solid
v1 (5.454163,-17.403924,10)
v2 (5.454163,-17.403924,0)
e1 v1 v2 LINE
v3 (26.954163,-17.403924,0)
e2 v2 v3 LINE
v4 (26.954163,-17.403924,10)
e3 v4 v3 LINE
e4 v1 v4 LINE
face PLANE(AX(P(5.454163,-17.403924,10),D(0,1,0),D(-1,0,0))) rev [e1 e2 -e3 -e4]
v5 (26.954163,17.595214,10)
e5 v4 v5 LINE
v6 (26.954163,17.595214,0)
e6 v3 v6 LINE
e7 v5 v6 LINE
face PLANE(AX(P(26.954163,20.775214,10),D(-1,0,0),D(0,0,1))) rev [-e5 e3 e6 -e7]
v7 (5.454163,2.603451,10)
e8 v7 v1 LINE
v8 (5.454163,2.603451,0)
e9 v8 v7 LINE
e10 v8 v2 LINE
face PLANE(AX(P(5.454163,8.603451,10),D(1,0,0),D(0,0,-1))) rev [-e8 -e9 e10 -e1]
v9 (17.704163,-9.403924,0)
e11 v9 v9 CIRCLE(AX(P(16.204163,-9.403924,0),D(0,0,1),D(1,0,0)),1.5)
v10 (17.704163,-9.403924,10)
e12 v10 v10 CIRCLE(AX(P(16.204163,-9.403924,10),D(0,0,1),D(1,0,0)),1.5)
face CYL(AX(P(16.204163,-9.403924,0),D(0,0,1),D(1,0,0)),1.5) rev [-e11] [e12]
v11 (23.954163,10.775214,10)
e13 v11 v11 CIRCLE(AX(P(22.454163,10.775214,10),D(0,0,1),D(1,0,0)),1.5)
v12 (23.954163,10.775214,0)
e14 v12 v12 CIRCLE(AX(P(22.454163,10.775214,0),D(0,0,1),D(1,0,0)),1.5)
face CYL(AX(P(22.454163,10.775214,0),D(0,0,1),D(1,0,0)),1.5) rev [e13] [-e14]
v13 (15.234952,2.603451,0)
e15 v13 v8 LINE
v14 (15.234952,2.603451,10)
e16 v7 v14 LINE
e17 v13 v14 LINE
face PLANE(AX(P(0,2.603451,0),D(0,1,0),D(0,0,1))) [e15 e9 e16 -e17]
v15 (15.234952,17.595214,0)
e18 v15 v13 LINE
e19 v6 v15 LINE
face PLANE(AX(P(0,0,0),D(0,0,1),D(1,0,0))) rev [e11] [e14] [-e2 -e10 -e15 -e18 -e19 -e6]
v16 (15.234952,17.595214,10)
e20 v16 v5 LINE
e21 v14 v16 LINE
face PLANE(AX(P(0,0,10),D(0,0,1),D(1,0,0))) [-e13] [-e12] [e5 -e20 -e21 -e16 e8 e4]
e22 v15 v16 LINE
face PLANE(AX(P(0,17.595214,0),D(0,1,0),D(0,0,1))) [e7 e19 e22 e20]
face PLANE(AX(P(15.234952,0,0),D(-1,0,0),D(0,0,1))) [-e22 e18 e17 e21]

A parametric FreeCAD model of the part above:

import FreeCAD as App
import Part
import Sketcher
Q = App.Units.Quantity

doc = App.newDocument("Part")
params = doc.addObject("Spreadsheet::Sheet", "Params")
for row, (alias, value) in enumerate([
    ("sketch1_width", "21.5 mm"),
    ("pad1_length", "10 mm"),
    ("sketch2_height", "10 mm"),
    ("pocket1_length", "6 mm"),
    ("sketch3_height", "10 mm"),
    ("pad2_length", "1 mm"),
    ("sketch4_diameter", "3 mm"),
    ("sketch5_height", "10 mm"),
    ("pocket3_length", "3.18 mm"),
], start=1):
    params.set(f"A{row}", alias)
    params.set(f"B{row}", "=" + value)
    params.setAlias(f"B{row}", alias)

body = doc.addObject("PartDesign::Body", "Body")

# Sketch on XY plane
sketch1 = body.newObject("Sketcher::SketchObject", "Sketch")
sketch1.AttachmentSupport = (doc.getObject("XY_Plane"), [""])
sketch1.MapMode = "FlatFace"
sketch1.addGeometry([
    Part.LineSegment(App.Vector(16, 9, 0), App.Vector(5, 9, 0)),  # 0
    Part.LineSegment(App.Vector(5, 9, 0), App.Vector(5, -17, 0)),  # 1
    Part.LineSegment(App.Vector(5, -17, 0), App.Vector(27, -17, 0)),  # 2
    Part.LineSegment(App.Vector(27, -17, 0), App.Vector(27, 21, 0)),  # 3
    Part.LineSegment(App.Vector(27, 21, 0), App.Vector(16, 21, 0)),  # 4
    Part.LineSegment(App.Vector(16, 21, 0), App.Vector(16, 9, 0)),  # 5
], False)
sketch1.addConstraint([
    Sketcher.Constraint("Coincident", 0, 2, 1, 1),
    Sketcher.Constraint("Coincident", 1, 2, 2, 1),
    Sketcher.Constraint("Coincident", 2, 2, 3, 1),
    Sketcher.Constraint("Coincident", 3, 2, 4, 1),
    Sketcher.Constraint("Coincident", 4, 2, 5, 1),
    Sketcher.Constraint("Coincident", 5, 2, 0, 1),
    Sketcher.Constraint("Horizontal", 0),
    Sketcher.Constraint("Vertical", 1),
    Sketcher.Constraint("Horizontal", 2),
    Sketcher.Constraint("Vertical", 3),
    Sketcher.Constraint("Horizontal", 4),
    Sketcher.Constraint("Vertical", 5),
    Sketcher.Constraint("DistanceX", 2, 1, 2, 2, Q("21.5 mm")),
    Sketcher.Constraint("DistanceX", 0, 2, 0, 1, Q("10.780789 mm")),
    Sketcher.Constraint("DistanceY", 3, 1, 3, 2, Q("38.179139 mm")),
    Sketcher.Constraint("DistanceY", 1, 2, 1, 1, Q("26.007376 mm")),
    Sketcher.Constraint("DistanceY", -1, 1, 0, 2, Q("8.603451 mm")),
    Sketcher.Constraint("DistanceX", -1, 1, 4, 2, Q("16.234952 mm")),
])
sketch1.setExpression("Constraints[12]", "Params.sketch1_width")
pad1 = body.newObject("PartDesign::Pad", "Pad")
pad1.Profile = sketch1
pad1.setExpression("Length", "Params.pad1_length")

# Sketch on XZ plane
sketch2 = body.newObject("Sketcher::SketchObject", "Sketch001")
sketch2.AttachmentSupport = (doc.getObject("XZ_Plane"), [""])
sketch2.MapMode = "FlatFace"
sketch2.AttachmentOffset = App.Placement(App.Vector(0, 0, -8.603451), App.Rotation())
sketch2.addGeometry([
    Part.LineSegment(App.Vector(5, 0, 0), App.Vector(5, 10, 0)),
    Part.LineSegment(App.Vector(5, 10, 0), App.Vector(16, 10, 0)),
    Part.LineSegment(App.Vector(16, 10, 0), App.Vector(16, 0, 0)),
    Part.LineSegment(App.Vector(16, 0, 0), App.Vector(5, 0, 0)),
], False)
sketch2.addConstraint([
    Sketcher.Constraint("Coincident", 0, 2, 1, 1),
    Sketcher.Constraint("Coincident", 1, 2, 2, 1),
    Sketcher.Constraint("Coincident", 2, 2, 3, 1),
    Sketcher.Constraint("Coincident", 3, 2, 0, 1),
    Sketcher.Constraint("Vertical", 0),
    Sketcher.Constraint("Horizontal", 1),
    Sketcher.Constraint("Vertical", 2),
    Sketcher.Constraint("Horizontal", 3),
    Sketcher.Constraint("PointOnObject", 2, 2, -1),
    Sketcher.Constraint("DistanceY", 0, 1, 0, 2, Q("10 mm")),
    Sketcher.Constraint("DistanceX", 1, 1, 1, 2, Q("10.780789 mm")),
    Sketcher.Constraint("DistanceX", -1, 1, 1, 2, Q("16.234952 mm")),
])
sketch2.setExpression("Constraints[9]", "Params.sketch2_height")
pocket1 = body.newObject("PartDesign::Pocket", "Pocket")
pocket1.Profile = sketch2
pocket1.setExpression("Length", "Params.pocket1_length")
pocket1.Reversed = True

# Sketch on YZ plane
sketch3 = body.newObject("Sketcher::SketchObject", "Sketch002")
sketch3.AttachmentSupport = (doc.getObject("YZ_Plane"), [""])
sketch3.MapMode = "FlatFace"
sketch3.AttachmentOffset = App.Placement(App.Vector(0, 0, 16.234952), App.Rotation())
sketch3.addGeometry([
    Part.LineSegment(App.Vector(21, 0, 0), App.Vector(3, 0, 0)),
    Part.LineSegment(App.Vector(3, 0, 0), App.Vector(3, 10, 0)),
    Part.LineSegment(App.Vector(3, 10, 0), App.Vector(21, 10, 0)),
    Part.LineSegment(App.Vector(21, 10, 0), App.Vector(21, 0, 0)),
], False)
sketch3.addConstraint([
    Sketcher.Constraint("Coincident", 0, 2, 1, 1),
    Sketcher.Constraint("Coincident", 1, 2, 2, 1),
    Sketcher.Constraint("Coincident", 2, 2, 3, 1),
    Sketcher.Constraint("Coincident", 3, 2, 0, 1),
    Sketcher.Constraint("Horizontal", 0),
    Sketcher.Constraint("Vertical", 1),
    Sketcher.Constraint("Horizontal", 2),
    Sketcher.Constraint("Vertical", 3),
    Sketcher.Constraint("PointOnObject", 0, 2, -1),
    Sketcher.Constraint("DistanceY", 1, 1, 1, 2, Q("10 mm")),
    Sketcher.Constraint("DistanceX", 0, 2, 0, 1, Q("18.171763 mm")),
    Sketcher.Constraint("DistanceX", -1, 1, 0, 2, Q("2.603451 mm")),
])
sketch3.setExpression("Constraints[9]", "Params.sketch3_height")
pad2 = body.newObject("PartDesign::Pad", "Pad001")
pad2.Profile = sketch3
pad2.setExpression("Length", "Params.pad2_length")
pad2.Reversed = True

# Sketch on XY plane
sketch4 = body.newObject("Sketcher::SketchObject", "Sketch003")
sketch4.AttachmentSupport = (doc.getObject("XY_Plane"), [""])
sketch4.MapMode = "FlatFace"
sketch4.AttachmentOffset = App.Placement(App.Vector(0, 0, 10), App.Rotation())
sketch4.addGeometry([
    Part.Circle(App.Vector(16.2, -9.4, 0), App.Vector(0, 0, 1), 1.5),
    Part.Circle(App.Vector(22.5, 10.8, 0), App.Vector(0, 0, 1), 1.5),
], False)
sketch4.addConstraint([
    Sketcher.Constraint("Equal", 0, 1),
    Sketcher.Constraint("Diameter", 0, Q("3 mm")),
    Sketcher.Constraint("DistanceX", 0, 3, 1, 3, Q("6.25 mm")),
    Sketcher.Constraint("DistanceY", 0, 3, 1, 3, Q("20.179139 mm")),
    Sketcher.Constraint("DistanceX", -1, 1, 0, 3, Q("16.204163 mm")),
    Sketcher.Constraint("DistanceY", 0, 3, -1, 1, Q("9.403924 mm")),
])
sketch4.setExpression("Constraints[1]", "Params.sketch4_diameter")
pocket2 = body.newObject("PartDesign::Pocket", "Pocket001")
pocket2.Profile = sketch4
pocket2.Type = "ThroughAll"

# Sketch on XZ plane
sketch5 = body.newObject("Sketcher::SketchObject", "Sketch004")
sketch5.AttachmentSupport = (doc.getObject("XZ_Plane"), [""])
sketch5.MapMode = "FlatFace"
sketch5.AttachmentOffset = App.Placement(App.Vector(0, 0, -20.775214), App.Rotation())
sketch5.addGeometry([
    Part.LineSegment(App.Vector(15, 0, 0), App.Vector(15, 10, 0)),
    Part.LineSegment(App.Vector(15, 10, 0), App.Vector(27, 10, 0)),
    Part.LineSegment(App.Vector(27, 10, 0), App.Vector(27, 0, 0)),
    Part.LineSegment(App.Vector(27, 0, 0), App.Vector(15, 0, 0)),
], False)
sketch5.addConstraint([
    Sketcher.Constraint("Coincident", 0, 2, 1, 1),
    Sketcher.Constraint("Coincident", 1, 2, 2, 1),
    Sketcher.Constraint("Coincident", 2, 2, 3, 1),
    Sketcher.Constraint("Coincident", 3, 2, 0, 1),
    Sketcher.Constraint("Vertical", 0),
    Sketcher.Constraint("Horizontal", 1),
    Sketcher.Constraint("Vertical", 2),
    Sketcher.Constraint("Horizontal", 3),
    Sketcher.Constraint("PointOnObject", 2, 2, -1),
    Sketcher.Constraint("DistanceY", 0, 1, 0, 2, Q("10 mm")),
    Sketcher.Constraint("DistanceX", 1, 1, 1, 2, Q("11.719211 mm")),
    Sketcher.Constraint("DistanceX", -1, 1, 0, 2, Q("15.234952 mm")),
])
sketch5.setExpression("Constraints[9]", "Params.sketch5_height")
pocket3 = body.newObject("PartDesign::Pocket", "Pocket002")
pocket3.Profile = sketch5
pocket3.setExpression("Length", "Params.pocket3_length")
pocket3.Reversed = True

doc.recompute()
